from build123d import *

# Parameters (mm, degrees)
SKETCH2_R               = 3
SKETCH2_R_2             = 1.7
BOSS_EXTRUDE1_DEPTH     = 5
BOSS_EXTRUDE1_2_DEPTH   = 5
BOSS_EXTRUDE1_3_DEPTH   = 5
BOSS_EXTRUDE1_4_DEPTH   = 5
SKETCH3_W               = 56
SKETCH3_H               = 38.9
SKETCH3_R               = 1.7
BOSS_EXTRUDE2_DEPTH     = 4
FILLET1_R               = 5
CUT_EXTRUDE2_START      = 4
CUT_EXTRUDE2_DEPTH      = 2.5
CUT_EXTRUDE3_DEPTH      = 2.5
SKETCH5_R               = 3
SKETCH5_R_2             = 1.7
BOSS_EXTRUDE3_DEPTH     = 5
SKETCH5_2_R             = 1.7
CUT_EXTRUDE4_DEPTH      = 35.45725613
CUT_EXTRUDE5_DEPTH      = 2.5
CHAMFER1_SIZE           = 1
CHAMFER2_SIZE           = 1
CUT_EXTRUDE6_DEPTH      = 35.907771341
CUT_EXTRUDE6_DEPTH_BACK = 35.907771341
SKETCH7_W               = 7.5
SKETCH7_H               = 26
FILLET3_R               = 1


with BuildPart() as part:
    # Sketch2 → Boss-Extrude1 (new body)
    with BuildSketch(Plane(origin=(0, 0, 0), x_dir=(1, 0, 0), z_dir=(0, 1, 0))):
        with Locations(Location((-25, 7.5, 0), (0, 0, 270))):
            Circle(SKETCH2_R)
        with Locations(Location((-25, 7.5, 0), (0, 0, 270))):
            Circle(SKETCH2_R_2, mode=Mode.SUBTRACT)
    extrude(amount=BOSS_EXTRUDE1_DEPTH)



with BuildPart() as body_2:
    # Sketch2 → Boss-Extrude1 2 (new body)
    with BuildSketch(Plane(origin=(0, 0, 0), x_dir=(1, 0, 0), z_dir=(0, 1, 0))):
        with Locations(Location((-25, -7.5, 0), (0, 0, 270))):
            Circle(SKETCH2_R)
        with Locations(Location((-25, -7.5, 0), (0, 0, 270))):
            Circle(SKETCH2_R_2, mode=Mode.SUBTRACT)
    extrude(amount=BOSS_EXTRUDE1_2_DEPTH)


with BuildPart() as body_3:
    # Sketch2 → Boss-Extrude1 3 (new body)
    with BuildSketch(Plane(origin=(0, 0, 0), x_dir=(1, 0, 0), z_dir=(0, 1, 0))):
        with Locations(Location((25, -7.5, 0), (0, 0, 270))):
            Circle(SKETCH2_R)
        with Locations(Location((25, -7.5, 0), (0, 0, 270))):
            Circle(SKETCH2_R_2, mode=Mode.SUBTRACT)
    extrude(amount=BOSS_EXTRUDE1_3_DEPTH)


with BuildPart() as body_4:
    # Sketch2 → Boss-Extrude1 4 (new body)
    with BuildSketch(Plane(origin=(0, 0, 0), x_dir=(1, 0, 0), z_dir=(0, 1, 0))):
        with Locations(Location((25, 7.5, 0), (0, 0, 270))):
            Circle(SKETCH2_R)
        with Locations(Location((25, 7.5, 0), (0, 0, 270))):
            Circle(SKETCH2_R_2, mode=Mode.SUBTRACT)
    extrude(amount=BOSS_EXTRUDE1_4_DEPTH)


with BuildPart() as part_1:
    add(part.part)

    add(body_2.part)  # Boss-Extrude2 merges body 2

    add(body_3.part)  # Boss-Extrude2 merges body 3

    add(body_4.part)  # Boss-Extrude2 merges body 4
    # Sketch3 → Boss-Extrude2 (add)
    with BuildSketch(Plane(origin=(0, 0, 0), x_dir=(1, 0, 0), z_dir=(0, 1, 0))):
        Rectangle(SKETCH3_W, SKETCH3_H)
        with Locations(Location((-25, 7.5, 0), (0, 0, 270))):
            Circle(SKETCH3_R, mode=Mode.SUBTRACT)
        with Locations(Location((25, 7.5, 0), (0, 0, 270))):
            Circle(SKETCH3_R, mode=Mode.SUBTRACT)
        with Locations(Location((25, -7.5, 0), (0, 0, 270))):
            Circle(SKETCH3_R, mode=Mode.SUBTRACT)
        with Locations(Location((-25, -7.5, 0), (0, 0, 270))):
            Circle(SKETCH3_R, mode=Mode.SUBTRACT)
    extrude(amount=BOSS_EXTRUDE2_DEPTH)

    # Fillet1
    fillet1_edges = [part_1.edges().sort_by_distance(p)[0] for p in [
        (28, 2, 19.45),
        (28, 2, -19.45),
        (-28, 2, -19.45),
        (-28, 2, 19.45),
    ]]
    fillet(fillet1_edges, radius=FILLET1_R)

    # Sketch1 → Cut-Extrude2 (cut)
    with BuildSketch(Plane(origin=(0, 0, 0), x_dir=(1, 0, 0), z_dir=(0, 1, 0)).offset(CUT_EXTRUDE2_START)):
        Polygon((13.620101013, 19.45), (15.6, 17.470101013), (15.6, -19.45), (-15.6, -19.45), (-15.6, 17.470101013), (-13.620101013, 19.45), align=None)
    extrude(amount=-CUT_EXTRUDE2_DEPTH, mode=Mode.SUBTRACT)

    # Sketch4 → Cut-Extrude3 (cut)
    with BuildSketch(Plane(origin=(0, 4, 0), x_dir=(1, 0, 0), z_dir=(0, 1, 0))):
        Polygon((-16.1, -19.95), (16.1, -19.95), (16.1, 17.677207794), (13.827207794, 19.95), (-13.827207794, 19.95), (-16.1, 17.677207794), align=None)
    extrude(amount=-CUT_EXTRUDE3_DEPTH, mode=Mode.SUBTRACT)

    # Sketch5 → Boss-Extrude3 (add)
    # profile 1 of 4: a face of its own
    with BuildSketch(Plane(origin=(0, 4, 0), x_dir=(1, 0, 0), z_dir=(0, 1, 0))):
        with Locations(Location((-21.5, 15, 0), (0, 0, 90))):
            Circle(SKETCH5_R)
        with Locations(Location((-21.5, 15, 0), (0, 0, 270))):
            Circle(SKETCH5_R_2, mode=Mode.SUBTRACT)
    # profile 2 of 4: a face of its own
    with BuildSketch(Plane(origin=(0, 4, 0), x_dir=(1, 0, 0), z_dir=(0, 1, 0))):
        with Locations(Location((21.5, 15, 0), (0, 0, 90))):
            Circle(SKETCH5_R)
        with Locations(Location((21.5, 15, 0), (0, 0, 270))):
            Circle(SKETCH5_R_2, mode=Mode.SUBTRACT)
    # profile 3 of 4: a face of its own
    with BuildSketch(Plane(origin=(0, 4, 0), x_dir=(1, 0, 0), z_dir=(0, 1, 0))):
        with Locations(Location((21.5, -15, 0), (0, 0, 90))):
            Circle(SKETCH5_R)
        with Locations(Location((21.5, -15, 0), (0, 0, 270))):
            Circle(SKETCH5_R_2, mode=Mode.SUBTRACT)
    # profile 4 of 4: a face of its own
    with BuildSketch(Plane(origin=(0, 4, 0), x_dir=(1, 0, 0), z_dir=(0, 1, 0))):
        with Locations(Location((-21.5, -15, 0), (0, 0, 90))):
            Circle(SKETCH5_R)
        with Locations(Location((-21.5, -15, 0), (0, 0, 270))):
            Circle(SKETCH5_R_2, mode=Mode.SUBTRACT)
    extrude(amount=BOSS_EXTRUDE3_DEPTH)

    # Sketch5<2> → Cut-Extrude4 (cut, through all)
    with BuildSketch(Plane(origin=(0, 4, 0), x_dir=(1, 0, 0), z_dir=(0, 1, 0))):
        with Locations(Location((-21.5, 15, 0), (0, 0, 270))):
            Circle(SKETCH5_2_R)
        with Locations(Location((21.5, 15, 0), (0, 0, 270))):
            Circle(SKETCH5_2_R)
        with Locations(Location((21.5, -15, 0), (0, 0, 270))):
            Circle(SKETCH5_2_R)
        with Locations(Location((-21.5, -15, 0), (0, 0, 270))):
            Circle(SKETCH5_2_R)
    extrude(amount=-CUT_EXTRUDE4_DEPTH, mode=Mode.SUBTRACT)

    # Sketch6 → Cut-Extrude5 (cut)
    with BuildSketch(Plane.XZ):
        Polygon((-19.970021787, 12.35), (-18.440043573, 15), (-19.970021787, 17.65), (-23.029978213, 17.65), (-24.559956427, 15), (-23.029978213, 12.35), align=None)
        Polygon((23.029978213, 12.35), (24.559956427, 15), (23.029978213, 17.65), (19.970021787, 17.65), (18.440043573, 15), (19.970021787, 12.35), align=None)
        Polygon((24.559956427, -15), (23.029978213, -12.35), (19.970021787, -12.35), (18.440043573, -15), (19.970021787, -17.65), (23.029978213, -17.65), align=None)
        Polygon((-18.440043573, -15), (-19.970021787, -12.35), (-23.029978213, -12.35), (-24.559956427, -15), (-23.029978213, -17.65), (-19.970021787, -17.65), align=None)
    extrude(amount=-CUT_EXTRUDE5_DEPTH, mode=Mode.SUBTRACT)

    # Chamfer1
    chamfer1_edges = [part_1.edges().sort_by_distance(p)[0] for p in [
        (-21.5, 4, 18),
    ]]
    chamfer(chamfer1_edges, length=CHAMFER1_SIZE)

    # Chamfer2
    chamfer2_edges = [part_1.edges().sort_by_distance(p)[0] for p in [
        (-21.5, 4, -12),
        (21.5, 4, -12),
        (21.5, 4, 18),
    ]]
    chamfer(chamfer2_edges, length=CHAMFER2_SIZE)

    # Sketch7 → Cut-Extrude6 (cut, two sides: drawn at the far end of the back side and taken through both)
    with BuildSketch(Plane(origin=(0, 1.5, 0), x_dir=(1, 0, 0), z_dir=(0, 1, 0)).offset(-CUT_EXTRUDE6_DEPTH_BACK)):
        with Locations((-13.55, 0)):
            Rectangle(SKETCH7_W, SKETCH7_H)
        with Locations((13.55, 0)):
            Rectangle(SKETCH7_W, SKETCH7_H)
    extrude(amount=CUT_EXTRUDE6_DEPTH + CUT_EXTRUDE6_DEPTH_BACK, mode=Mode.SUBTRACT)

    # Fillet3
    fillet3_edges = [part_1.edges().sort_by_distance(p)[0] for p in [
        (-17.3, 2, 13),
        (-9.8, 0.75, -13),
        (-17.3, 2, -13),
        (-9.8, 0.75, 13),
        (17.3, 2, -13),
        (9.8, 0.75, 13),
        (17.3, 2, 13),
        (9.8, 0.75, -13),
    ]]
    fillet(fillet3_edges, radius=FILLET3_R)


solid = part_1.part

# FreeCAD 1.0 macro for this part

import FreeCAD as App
import Part
import Sketcher

V = App.Vector
Q = App.Units.Quantity


def edges_at(feature, points):
    """Names of the edges that pass closest to the given points."""
    edges = feature.Shape.Edges
    near = lambda p: min(range(len(edges)), key=lambda i: edges[i].distToShape(Part.Vertex(*p))[0])
    return sorted({f"Edge{near(p) + 1}" for p in points})

doc = App.newDocument("Part")
params = doc.addObject("Spreadsheet::Sheet", "Params")
for row, (alias, value) in enumerate([
    ("sketch1_diameter", "6 mm"),
    ("sketch1_diameter2", "3.4 mm"),
    ("pad1_length", "5 mm"),
    ("sketch2_diameter", "6 mm"),
    ("sketch2_diameter2", "3.4 mm"),
    ("pad2_length", "5 mm"),
    ("sketch3_diameter", "6 mm"),
    ("sketch3_diameter2", "3.4 mm"),
    ("pad3_length", "5 mm"),
    ("sketch4_diameter", "6 mm"),
    ("sketch4_diameter2", "3.4 mm"),
    ("pad4_length", "5 mm"),
    ("sketch5_diameter", "3.4 mm"),
    ("sketch5_width", "56 mm"),
    ("sketch5_height", "38.9 mm"),
    ("pad5_length", "4 mm"),
    ("fillet_radius", "5 mm"),
    ("sketch6_width", "31.2 mm"),
    ("sketch6_length", "2.8 mm"),
    ("pocket1_length", "2.5 mm"),
    ("sketch7_width", "32.2 mm"),
    ("pocket2_length", "2.5 mm"),
    ("sketch8_diameter", "6 mm"),
    ("sketch8_diameter2", "3.4 mm"),
    ("pad6_length", "5 mm"),
    ("sketch9_diameter", "3.4 mm"),
    ("pocket4_length", "2.5 mm"),
    ("chamfer_size", "1 mm"),
    ("chamfer2_size", "1 mm"),
    ("sketch11_height", "26 mm"),
    ("sketch11_width", "7.5 mm"),
    ("fillet2_radius", "1 mm"),
], start=1):
    params.set(f"A{row}", alias)
    params.set(f"B{row}", "=" + value)
    params.setAlias(f"B{row}", alias)

body = doc.addObject("PartDesign::Body", "Body")

sketch1 = doc.addObject("Sketcher::SketchObject", "Sketch")
body.addObject(sketch1)
sketch1.AttachmentSupport = (doc.XZ_Plane, [""])
sketch1.MapMode = "FlatFace"
sketch1.addGeometry([
    Part.Circle(V(-25, -7.5, 0), V(0, 0, 1), 3),
    Part.Circle(V(-25, -7.5, 0), V(0, 0, 1), 1.7),
], False)
sketch1.addConstraint([
    Sketcher.Constraint("Coincident", 1, 3, 0, 3),
    Sketcher.Constraint("Diameter", 0, Q("6 mm")),
    Sketcher.Constraint("Diameter", 1, Q("3.4 mm")),
    Sketcher.Constraint("DistanceX", 0, 3, -1, 1, Q("25 mm")),
    Sketcher.Constraint("DistanceY", 0, 3, -1, 1, Q("7.5 mm")),
])
sketch1.setExpression("Constraints[1]", "Params.sketch1_diameter")
sketch1.setExpression("Constraints[2]", "Params.sketch1_diameter2")
pad1 = doc.addObject("PartDesign::Pad", "Pad")
body.addObject(pad1)
pad1.Profile = sketch1
pad1.setExpression("Length", "Params.pad1_length")
pad1.Reversed = True
body2 = doc.addObject("PartDesign::Body", "Body001")

sketch2 = doc.addObject("Sketcher::SketchObject", "Sketch001")
body2.addObject(sketch2)
sketch2.AttachmentSupport = (doc.getObject("XZ_Plane001"), [""])
sketch2.MapMode = "FlatFace"
sketch2.addGeometry([
    Part.Circle(V(-25, 7.5, 0), V(0, 0, 1), 3),
    Part.Circle(V(-25, 7.5, 0), V(0, 0, 1), 1.7),
], False)
sketch2.addConstraint([
    Sketcher.Constraint("Coincident", 1, 3, 0, 3),
    Sketcher.Constraint("Diameter", 0, Q("6 mm")),
    Sketcher.Constraint("Diameter", 1, Q("3.4 mm")),
    Sketcher.Constraint("DistanceX", 0, 3, -1, 1, Q("25 mm")),
    Sketcher.Constraint("DistanceY", -1, 1, 0, 3, Q("7.5 mm")),
])
sketch2.setExpression("Constraints[1]", "Params.sketch2_diameter")
sketch2.setExpression("Constraints[2]", "Params.sketch2_diameter2")
pad2 = doc.addObject("PartDesign::Pad", "Pad001")
body2.addObject(pad2)
pad2.Profile = sketch2
pad2.setExpression("Length", "Params.pad2_length")
pad2.Reversed = True
body3 = doc.addObject("PartDesign::Body", "Body002")

sketch3 = doc.addObject("Sketcher::SketchObject", "Sketch002")
body3.addObject(sketch3)
sketch3.AttachmentSupport = (doc.getObject("XZ_Plane002"), [""])
sketch3.MapMode = "FlatFace"
sketch3.addGeometry([
    Part.Circle(V(25, 7.5, 0), V(0, 0, 1), 3),
    Part.Circle(V(25, 7.5, 0), V(0, 0, 1), 1.7),
], False)
sketch3.addConstraint([
    Sketcher.Constraint("Coincident", 1, 3, 0, 3),
    Sketcher.Constraint("Diameter", 0, Q("6 mm")),
    Sketcher.Constraint("Diameter", 1, Q("3.4 mm")),
    Sketcher.Constraint("DistanceX", -1, 1, 0, 3, Q("25 mm")),
    Sketcher.Constraint("DistanceY", -1, 1, 0, 3, Q("7.5 mm")),
])
sketch3.setExpression("Constraints[1]", "Params.sketch3_diameter")
sketch3.setExpression("Constraints[2]", "Params.sketch3_diameter2")
pad3 = doc.addObject("PartDesign::Pad", "Pad002")
body3.addObject(pad3)
pad3.Profile = sketch3
pad3.setExpression("Length", "Params.pad3_length")
pad3.Reversed = True
body4 = doc.addObject("PartDesign::Body", "Body003")

sketch4 = doc.addObject("Sketcher::SketchObject", "Sketch003")
body4.addObject(sketch4)
sketch4.AttachmentSupport = (doc.getObject("XZ_Plane003"), [""])
sketch4.MapMode = "FlatFace"
sketch4.addGeometry([
    Part.Circle(V(25, -7.5, 0), V(0, 0, 1), 3),
    Part.Circle(V(25, -7.5, 0), V(0, 0, 1), 1.7),
], False)
sketch4.addConstraint([
    Sketcher.Constraint("Coincident", 1, 3, 0, 3),
    Sketcher.Constraint("Diameter", 0, Q("6 mm")),
    Sketcher.Constraint("Diameter", 1, Q("3.4 mm")),
    Sketcher.Constraint("DistanceX", -1, 1, 0, 3, Q("25 mm")),
    Sketcher.Constraint("DistanceY", 0, 3, -1, 1, Q("7.5 mm")),
])
sketch4.setExpression("Constraints[1]", "Params.sketch4_diameter")
sketch4.setExpression("Constraints[2]", "Params.sketch4_diameter2")
pad4 = doc.addObject("PartDesign::Pad", "Pad003")
body4.addObject(pad4)
pad4.Profile = sketch4
pad4.setExpression("Length", "Params.pad4_length")
pad4.Reversed = True
body.AllowCompound = True
doc.recompute()

boolean = doc.addObject("PartDesign::Boolean", "Boolean")
body.addObject(boolean)
boolean.Type = "Fuse"
boolean.addObjects([body2])
doc.recompute()

boolean2 = doc.addObject("PartDesign::Boolean", "Boolean001")
body.addObject(boolean2)
boolean2.Type = "Fuse"
boolean2.addObjects([body3])
doc.recompute()

boolean3 = doc.addObject("PartDesign::Boolean", "Boolean002")
body.addObject(boolean3)
boolean3.Type = "Fuse"
boolean3.addObjects([body4])

sketch5 = doc.addObject("Sketcher::SketchObject", "Sketch004")
body.addObject(sketch5)
sketch5.AttachmentSupport = (doc.XZ_Plane, [""])
sketch5.MapMode = "FlatFace"
sketch5.addGeometry([
    Part.LineSegment(V(-28, -19.4, 0), V(-28, 19.4, 0)),
    Part.LineSegment(V(-28, 19.4, 0), V(28, 19.4, 0)),
    Part.LineSegment(V(28, 19.4, 0), V(28, -19.4, 0)),
    Part.LineSegment(V(28, -19.4, 0), V(-28, -19.4, 0)),
    Part.Circle(V(-25, 7.5, 0), V(0, 0, 1), 1.7),
    Part.Circle(V(25, 7.5, 0), V(0, 0, 1), 1.7),
    Part.Circle(V(-25, -7.5, 0), V(0, 0, 1), 1.7),
    Part.Circle(V(25, -7.5, 0), V(0, 0, 1), 1.7),
], False)
sketch5.addConstraint([
    Sketcher.Constraint("Coincident", 0, 2, 1, 1),
    Sketcher.Constraint("Coincident", 1, 2, 2, 1),
    Sketcher.Constraint("Coincident", 2, 2, 3, 1),
    Sketcher.Constraint("Coincident", 3, 2, 0, 1),
    Sketcher.Constraint("Vertical", 0),
    Sketcher.Constraint("Horizontal", 1),
    Sketcher.Constraint("Vertical", 2),
    Sketcher.Constraint("Horizontal", 3),
    Sketcher.Constraint("Equal", 4, 5),
    Sketcher.Constraint("Equal", 5, 6),
    Sketcher.Constraint("Equal", 6, 7),
    Sketcher.Constraint("Symmetric", 5, 3, 6, 3, -1, 1),
    Sketcher.Constraint("Symmetric", 4, 3, 7, 3, -1, 1),
    Sketcher.Constraint("Symmetric", 0, 2, 2, 2, -1, 1),
    Sketcher.Constraint("Symmetric", 4, 3, 5, 3, -2),
    Sketcher.Constraint("Diameter", 4, Q("3.4 mm")),
    Sketcher.Constraint("DistanceX", 1, 1, 1, 2, Q("56 mm")),
    Sketcher.Constraint("DistanceY", 0, 1, 0, 2, Q("38.9 mm")),
    Sketcher.Constraint("DistanceX", 4, 3, -1, 1, Q("25 mm")),
    Sketcher.Constraint("DistanceY", 6, 3, 4, 3, Q("15 mm")),
])
sketch5.setExpression("Constraints[15]", "Params.sketch5_diameter")
sketch5.setExpression("Constraints[16]", "Params.sketch5_width")
sketch5.setExpression("Constraints[17]", "Params.sketch5_height")
pad5 = doc.addObject("PartDesign::Pad", "Pad004")
body.addObject(pad5)
pad5.Profile = sketch5
pad5.setExpression("Length", "Params.pad5_length")
pad5.Reversed = True
doc.recompute()

fillet = doc.addObject("PartDesign::Fillet", "Fillet")
body.addObject(fillet)
fillet.Base = (pad5, edges_at(pad5, [
    (28, 2, 19.45),
    (28, 2, -19.45),
    (-28, 2, -19.45),
    (-28, 2, 19.45),
]))
fillet.setExpression("Radius", "Params.fillet_radius")

sketch6 = doc.addObject("Sketcher::SketchObject", "Sketch005")
body.addObject(sketch6)
sketch6.AttachmentSupport = (doc.XZ_Plane, [""])
sketch6.MapMode = "FlatFace"
sketch6.AttachmentOffset = App.Placement(V(0, 0, -4), App.Rotation())
sketch6.addGeometry([
    Part.LineSegment(V(15.6, -17.5, 0), V(13.6, -19.4, 0)),
    Part.LineSegment(V(13.6, -19.4, 0), V(-13.6, -19.4, 0)),
    Part.LineSegment(V(-13.6, -19.4, 0), V(-15.6, -17.5, 0)),
    Part.LineSegment(V(-15.6, -17.5, 0), V(-15.6, 19.4, 0)),
    Part.LineSegment(V(-15.6, 19.4, 0), V(15.6, 19.4, 0)),
    Part.LineSegment(V(15.6, 19.4, 0), V(15.6, -17.5, 0)),
], False)
sketch6.addConstraint([
    Sketcher.Constraint("Coincident", 0, 2, 1, 1),
    Sketcher.Constraint("Coincident", 1, 2, 2, 1),
    Sketcher.Constraint("Coincident", 2, 2, 3, 1),
    Sketcher.Constraint("Coincident", 3, 2, 4, 1),
    Sketcher.Constraint("Coincident", 4, 2, 5, 1),
    Sketcher.Constraint("Coincident", 5, 2, 0, 1),
    Sketcher.Constraint("Horizontal", 1),
    Sketcher.Constraint("Vertical", 3),
    Sketcher.Constraint("Horizontal", 4),
    Sketcher.Constraint("Vertical", 5),
    Sketcher.Constraint("Symmetric", 2, 2, 5, 2, -2),
    Sketcher.Constraint("Perpendicular", 0, 2),
    Sketcher.Constraint("Equal", 0, 2),
    Sketcher.Constraint("DistanceX", 4, 1, 4, 2, Q("31.2 mm")),
    Sketcher.Constraint("Distance", 0, Q("2.8 mm")),
    Sketcher.Constraint("DistanceY", 1, 2, 3, 2, Q("38.9 mm")),
    Sketcher.Constraint("DistanceY", 0, 2, -1, 1, Q("19.45 mm")),
])
sketch6.setExpression("Constraints[13]", "Params.sketch6_width")
sketch6.setExpression("Constraints[14]", "Params.sketch6_length")
pocket1 = doc.addObject("PartDesign::Pocket", "Pocket")
body.addObject(pocket1)
pocket1.Profile = sketch6
pocket1.setExpression("Length", "Params.pocket1_length")
pocket1.Reversed = True

sketch7 = doc.addObject("Sketcher::SketchObject", "Sketch006")
body.addObject(sketch7)
sketch7.AttachmentSupport = (doc.XZ_Plane, [""])
sketch7.MapMode = "FlatFace"
sketch7.AttachmentOffset = App.Placement(V(0, 0, -4), App.Rotation())
sketch7.addGeometry([
    Part.LineSegment(V(-16.1, 19.9, 0), V(16.1, 19.9, 0)),
    Part.LineSegment(V(16.1, 19.9, 0), V(16.1, -17.7, 0)),
    Part.LineSegment(V(16.1, -17.7, 0), V(13.8, -19.9, 0)),
    Part.LineSegment(V(13.8, -19.9, 0), V(-13.8, -19.9, 0)),
    Part.LineSegment(V(-13.8, -19.9, 0), V(-16.1, -17.7, 0)),
    Part.LineSegment(V(-16.1, -17.7, 0), V(-16.1, 19.9, 0)),
], False)
sketch7.addConstraint([
    Sketcher.Constraint("Coincident", 0, 2, 1, 1),
    Sketcher.Constraint("Coincident", 1, 2, 2, 1),
    Sketcher.Constraint("Coincident", 2, 2, 3, 1),
    Sketcher.Constraint("Coincident", 3, 2, 4, 1),
    Sketcher.Constraint("Coincident", 4, 2, 5, 1),
    Sketcher.Constraint("Coincident", 5, 2, 0, 1),
    Sketcher.Constraint("Horizontal", 0),
    Sketcher.Constraint("Vertical", 1),
    Sketcher.Constraint("Horizontal", 3),
    Sketcher.Constraint("Vertical", 5),
    Sketcher.Constraint("Symmetric", 1, 2, 4, 2, -2),
    Sketcher.Constraint("Perpendicular", 2, 4),
    Sketcher.Constraint("Equal", 2, 4),
    Sketcher.Constraint("DistanceX", 0, 1, 0, 2, Q("32.2 mm")),
    Sketcher.Constraint("DistanceY", 2, 2, 0, 2, Q("39.9 mm")),
    Sketcher.Constraint("DistanceY", -1, 1, 0, 2, Q("19.95 mm")),
    Sketcher.Constraint("DistanceX", 3, 2, 3, 1, Q("27.654416 mm")),
])
sketch7.setExpression("Constraints[13]", "Params.sketch7_width")
pocket2 = doc.addObject("PartDesign::Pocket", "Pocket001")
body.addObject(pocket2)
pocket2.Profile = sketch7
pocket2.setExpression("Length", "Params.pocket2_length")
pocket2.Reversed = True

sketch8 = doc.addObject("Sketcher::SketchObject", "Sketch007")
body.addObject(sketch8)
sketch8.AttachmentSupport = (doc.XZ_Plane, [""])
sketch8.MapMode = "FlatFace"
sketch8.AttachmentOffset = App.Placement(V(0, 0, -4), App.Rotation())
sketch8.addGeometry([
    Part.Circle(V(-21.5, -15, 0), V(0, 0, 1), 3),
    Part.Circle(V(-21.5, -15, 0), V(0, 0, 1), 1.7),
    Part.Circle(V(21.5, -15, 0), V(0, 0, 1), 3),
    Part.Circle(V(21.5, -15, 0), V(0, 0, 1), 1.7),
    Part.Circle(V(21.5, 15, 0), V(0, 0, 1), 3),
    Part.Circle(V(21.5, 15, 0), V(0, 0, 1), 1.7),
    Part.Circle(V(-21.5, 15, 0), V(0, 0, 1), 3),
    Part.Circle(V(-21.5, 15, 0), V(0, 0, 1), 1.7),
], False)
sketch8.addConstraint([
    Sketcher.Constraint("Coincident", 1, 3, 0, 3),
    Sketcher.Constraint("Coincident", 3, 3, 2, 3),
    Sketcher.Constraint("Coincident", 5, 3, 4, 3),
    Sketcher.Constraint("Coincident", 7, 3, 6, 3),
    Sketcher.Constraint("Equal", 0, 2),
    Sketcher.Constraint("Equal", 1, 3),
    Sketcher.Constraint("Equal", 2, 4),
    Sketcher.Constraint("Equal", 3, 5),
    Sketcher.Constraint("Equal", 4, 6),
    Sketcher.Constraint("Equal", 5, 7),
    Sketcher.Constraint("Symmetric", 0, 3, 4, 3, -1, 1),
    Sketcher.Constraint("Symmetric", 2, 3, 6, 3, -1, 1),
    Sketcher.Constraint("Symmetric", 0, 3, 2, 3, -2),
    Sketcher.Constraint("Diameter", 0, Q("6 mm")),
    Sketcher.Constraint("Diameter", 1, Q("3.4 mm")),
    Sketcher.Constraint("DistanceY", 0, 3, -1, 1, Q("15 mm")),
    Sketcher.Constraint("DistanceX", 0, 3, 2, 3, Q("43 mm")),
])
sketch8.setExpression("Constraints[13]", "Params.sketch8_diameter")
sketch8.setExpression("Constraints[14]", "Params.sketch8_diameter2")
pad6 = doc.addObject("PartDesign::Pad", "Pad005")
body.addObject(pad6)
pad6.Profile = sketch8
pad6.setExpression("Length", "Params.pad6_length")
pad6.Reversed = True

sketch9 = doc.addObject("Sketcher::SketchObject", "Sketch008")
body.addObject(sketch9)
sketch9.AttachmentSupport = (doc.XZ_Plane, [""])
sketch9.MapMode = "FlatFace"
sketch9.AttachmentOffset = App.Placement(V(0, 0, -4), App.Rotation())
sketch9.addGeometry([
    Part.Circle(V(-21.5, -15, 0), V(0, 0, 1), 1.7),
    Part.Circle(V(21.5, -15, 0), V(0, 0, 1), 1.7),
    Part.Circle(V(21.5, 15, 0), V(0, 0, 1), 1.7),
    Part.Circle(V(-21.5, 15, 0), V(0, 0, 1), 1.7),
], False)
sketch9.addConstraint([
    Sketcher.Constraint("Equal", 0, 1),
    Sketcher.Constraint("Equal", 1, 2),
    Sketcher.Constraint("Equal", 2, 3),
    Sketcher.Constraint("Symmetric", 0, 3, 2, 3, -1, 1),
    Sketcher.Constraint("Symmetric", 1, 3, 3, 3, -1, 1),
    Sketcher.Constraint("Symmetric", 0, 3, 1, 3, -2),
    Sketcher.Constraint("Diameter", 0, Q("3.4 mm")),
    Sketcher.Constraint("DistanceY", 0, 3, -1, 1, Q("15 mm")),
    Sketcher.Constraint("DistanceX", 0, 3, 1, 3, Q("43 mm")),
])
sketch9.setExpression("Constraints[6]", "Params.sketch9_diameter")
pocket3 = doc.addObject("PartDesign::Pocket", "Pocket002")
body.addObject(pocket3)
pocket3.Profile = sketch9
pocket3.Type = "ThroughAll"
pocket3.Reversed = True

sketch10 = doc.addObject("Sketcher::SketchObject", "Sketch009")
body.addObject(sketch10)
sketch10.AttachmentSupport = (doc.XZ_Plane, [""])
sketch10.MapMode = "FlatFace"
sketch10.addGeometry([
    Part.LineSegment(V(-20, 12.3, 0), V(-18.4, 15, 0)),
    Part.LineSegment(V(-18.4, 15, 0), V(-20, 17.6, 0)),
    Part.LineSegment(V(-20, 17.6, 0), V(-23, 17.6, 0)),
    Part.LineSegment(V(-23, 17.6, 0), V(-24.6, 15, 0)),
    Part.LineSegment(V(-24.6, 15, 0), V(-23, 12.3, 0)),
    Part.LineSegment(V(-23, 12.3, 0), V(-20, 12.3, 0)),
    Part.LineSegment(V(23, 12.3, 0), V(24.6, 15, 0)),
    Part.LineSegment(V(24.6, 15, 0), V(23, 17.6, 0)),
    Part.LineSegment(V(23, 17.6, 0), V(20, 17.6, 0)),
    Part.LineSegment(V(20, 17.6, 0), V(18.4, 15, 0)),
    Part.LineSegment(V(18.4, 15, 0), V(20, 12.3, 0)),
    Part.LineSegment(V(20, 12.3, 0), V(23, 12.3, 0)),
    Part.LineSegment(V(24.6, -15, 0), V(23, -12.3, 0)),
    Part.LineSegment(V(23, -12.3, 0), V(20, -12.3, 0)),
    Part.LineSegment(V(20, -12.3, 0), V(18.4, -15, 0)),
    Part.LineSegment(V(18.4, -15, 0), V(20, -17.6, 0)),
    Part.LineSegment(V(20, -17.6, 0), V(23, -17.6, 0)),
    Part.LineSegment(V(23, -17.6, 0), V(24.6, -15, 0)),
    Part.LineSegment(V(-18.4, -15, 0), V(-20, -12.3, 0)),
    Part.LineSegment(V(-20, -12.3, 0), V(-23, -12.3, 0)),
    Part.LineSegment(V(-23, -12.3, 0), V(-24.6, -15, 0)),
    Part.LineSegment(V(-24.6, -15, 0), V(-23, -17.6, 0)),
    Part.LineSegment(V(-23, -17.6, 0), V(-20, -17.6, 0)),
    Part.LineSegment(V(-20, -17.6, 0), V(-18.4, -15, 0)),
], False)
sketch10.addConstraint([
    Sketcher.Constraint("Coincident", 0, 2, 1, 1),
    Sketcher.Constraint("Coincident", 1, 2, 2, 1),
    Sketcher.Constraint("Coincident", 2, 2, 3, 1),
    Sketcher.Constraint("Coincident", 3, 2, 4, 1),
    Sketcher.Constraint("Coincident", 4, 2, 5, 1),
    Sketcher.Constraint("Coincident", 5, 2, 0, 1),
    Sketcher.Constraint("Coincident", 6, 2, 7, 1),
    Sketcher.Constraint("Coincident", 7, 2, 8, 1),
    Sketcher.Constraint("Coincident", 8, 2, 9, 1),
    Sketcher.Constraint("Coincident", 9, 2, 10, 1),
    Sketcher.Constraint("Coincident", 10, 2, 11, 1),
    Sketcher.Constraint("Coincident", 11, 2, 6, 1),
    Sketcher.Constraint("Coincident", 12, 2, 13, 1),
    Sketcher.Constraint("Coincident", 13, 2, 14, 1),
    Sketcher.Constraint("Coincident", 14, 2, 15, 1),
    Sketcher.Constraint("Coincident", 15, 2, 16, 1),
    Sketcher.Constraint("Coincident", 16, 2, 17, 1),
    Sketcher.Constraint("Coincident", 17, 2, 12, 1),
    Sketcher.Constraint("Coincident", 18, 2, 19, 1),
    Sketcher.Constraint("Coincident", 19, 2, 20, 1),
    Sketcher.Constraint("Coincident", 20, 2, 21, 1),
    Sketcher.Constraint("Coincident", 21, 2, 22, 1),
    Sketcher.Constraint("Coincident", 22, 2, 23, 1),
    Sketcher.Constraint("Coincident", 23, 2, 18, 1),
    Sketcher.Constraint("Horizontal", 2),
    Sketcher.Constraint("Horizontal", 5),
    Sketcher.Constraint("Horizontal", 8),
    Sketcher.Constraint("Horizontal", 11),
    Sketcher.Constraint("Horizontal", 13),
    Sketcher.Constraint("Horizontal", 16),
    Sketcher.Constraint("Horizontal", 19),
    Sketcher.Constraint("Horizontal", 22),
    Sketcher.Constraint("Symmetric", 4, 2, 12, 2, -1, 1),
    Sketcher.Constraint("Symmetric", 0, 2, 14, 2, -1, 1),
    Sketcher.Constraint("Symmetric", 1, 2, 15, 2, -1, 1),
    Sketcher.Constraint("Symmetric", 3, 2, 17, 2, -1, 1),
    Sketcher.Constraint("Symmetric", 10, 2, 18, 2, -1, 1),
    Sketcher.Constraint("Symmetric", 6, 2, 20, 2, -1, 1),
    Sketcher.Constraint("Symmetric", 7, 2, 21, 2, -1, 1),
    Sketcher.Constraint("Symmetric", 9, 2, 23, 2, -1, 1),
    Sketcher.Constraint("Symmetric", 3, 2, 6, 2, -2),
    Sketcher.Constraint("Symmetric", 2, 2, 7, 2, -2),
    Sketcher.Constraint("Symmetric", 0, 2, 9, 2, -2),
    Sketcher.Constraint("Symmetric", 5, 2, 10, 2, -2),
    Sketcher.Constraint("Parallel", 0, 3),
    Sketcher.Constraint("Parallel", 1, 4),
    Sketcher.Constraint("Parallel", 3, 6),
    Sketcher.Constraint("Parallel", 4, 7),
    Sketcher.Constraint("Parallel", 6, 9),
    Sketcher.Constraint("Parallel", 9, 14),
    Sketcher.Constraint("Parallel", 14, 17),
    Sketcher.Constraint("Parallel", 17, 20),
    Sketcher.Constraint("Parallel", 20, 23),
    Sketcher.Constraint("Horizontal", 0, 2, 3, 2),
    Sketcher.Constraint("Vertical", 2, 2, 4, 2),
    Sketcher.Constraint("Angle", 0, Q("60 deg")),
    Sketcher.Constraint("DistanceY", -1, 1, 0, 2, Q("15 mm")),
    Sketcher.Constraint("DistanceX", 0, 2, 6, 2, Q("43 mm")),
    Sketcher.Constraint("DistanceY", 4, 2, 2, 2, Q("5.3 mm")),
    Sketcher.Constraint("DistanceX", 2, 2, 2, 1, Q("3.059956 mm")),
])
pocket4 = doc.addObject("PartDesign::Pocket", "Pocket003")
body.addObject(pocket4)
pocket4.Profile = sketch10
pocket4.setExpression("Length", "Params.pocket4_length")
doc.recompute()

chamfer = doc.addObject("PartDesign::Chamfer", "Chamfer")
body.addObject(chamfer)
chamfer.Base = (pocket4, edges_at(pocket4, [(-21.5, 4, 18)]))
chamfer.setExpression("Size", "Params.chamfer_size")
doc.recompute()

chamfer2 = doc.addObject("PartDesign::Chamfer", "Chamfer001")
body.addObject(chamfer2)
chamfer2.Base = (chamfer, edges_at(chamfer, [(-21.5, 4, -12), (21.5, 4, -12), (21.5, 4, 18)]))
chamfer2.setExpression("Size", "Params.chamfer2_size")

sketch11 = doc.addObject("Sketcher::SketchObject", "Sketch010")
body.addObject(sketch11)
sketch11.AttachmentSupport = (doc.XZ_Plane, [""])
sketch11.MapMode = "FlatFace"
sketch11.AttachmentOffset = App.Placement(V(0, 0, -1.5), App.Rotation())
sketch11.addGeometry([
    Part.LineSegment(V(-17, -13, 0), V(-17, 13, 0)),
    Part.LineSegment(V(-17, 13, 0), V(-10, 13, 0)),
    Part.LineSegment(V(-10, 13, 0), V(-10, -13, 0)),
    Part.LineSegment(V(-10, -13, 0), V(-17, -13, 0)),
    Part.LineSegment(V(10, -13, 0), V(10, 13, 0)),
    Part.LineSegment(V(10, 13, 0), V(17, 13, 0)),
    Part.LineSegment(V(17, 13, 0), V(17, -13, 0)),
    Part.LineSegment(V(17, -13, 0), V(10, -13, 0)),
], False)
sketch11.addConstraint([
    Sketcher.Constraint("Coincident", 0, 2, 1, 1),
    Sketcher.Constraint("Coincident", 1, 2, 2, 1),
    Sketcher.Constraint("Coincident", 2, 2, 3, 1),
    Sketcher.Constraint("Coincident", 3, 2, 0, 1),
    Sketcher.Constraint("Coincident", 4, 2, 5, 1),
    Sketcher.Constraint("Coincident", 5, 2, 6, 1),
    Sketcher.Constraint("Coincident", 6, 2, 7, 1),
    Sketcher.Constraint("Coincident", 7, 2, 4, 1),
    Sketcher.Constraint("Vertical", 0),
    Sketcher.Constraint("Horizontal", 1),
    Sketcher.Constraint("Vertical", 2),
    Sketcher.Constraint("Horizontal", 3),
    Sketcher.Constraint("Vertical", 4),
    Sketcher.Constraint("Horizontal", 5),
    Sketcher.Constraint("Vertical", 6),
    Sketcher.Constraint("Horizontal", 7),
    Sketcher.Constraint("Symmetric", 2, 2, 4, 2, -1, 1),
    Sketcher.Constraint("Symmetric", 0, 2, 6, 2, -1, 1),
    Sketcher.Constraint("Horizontal", 1, 2, 4, 2),
    Sketcher.Constraint("DistanceY", 0, 1, 0, 2, Q("26 mm")),
    Sketcher.Constraint("DistanceX", 1, 1, 1, 2, Q("7.5 mm")),
    Sketcher.Constraint("DistanceX", 0, 2, -1, 1, Q("17.3 mm")),
])
sketch11.setExpression("Constraints[19]", "Params.sketch11_height")
sketch11.setExpression("Constraints[20]", "Params.sketch11_width")
pocket5 = doc.addObject("PartDesign::Pocket", "Pocket004")
body.addObject(pocket5)
pocket5.Profile = sketch11
pocket5.Type = "ThroughAll"
pocket5.Midplane = True
doc.recompute()

fillet2 = doc.addObject("PartDesign::Fillet", "Fillet001")
body.addObject(fillet2)
fillet2.Base = (pocket5, edges_at(pocket5, [
    (-17.3, 2, 13),
    (-9.8, 0.75, -13),
    (-17.3, 2, -13),
    (-9.8, 0.75, 13),
    (17.3, 2, -13),
    (9.8, 0.75, 13),
    (17.3, 2, 13),
    (9.8, 0.75, -13),
]))
fillet2.setExpression("Radius", "Params.fillet2_radius")

doc.recompute()
